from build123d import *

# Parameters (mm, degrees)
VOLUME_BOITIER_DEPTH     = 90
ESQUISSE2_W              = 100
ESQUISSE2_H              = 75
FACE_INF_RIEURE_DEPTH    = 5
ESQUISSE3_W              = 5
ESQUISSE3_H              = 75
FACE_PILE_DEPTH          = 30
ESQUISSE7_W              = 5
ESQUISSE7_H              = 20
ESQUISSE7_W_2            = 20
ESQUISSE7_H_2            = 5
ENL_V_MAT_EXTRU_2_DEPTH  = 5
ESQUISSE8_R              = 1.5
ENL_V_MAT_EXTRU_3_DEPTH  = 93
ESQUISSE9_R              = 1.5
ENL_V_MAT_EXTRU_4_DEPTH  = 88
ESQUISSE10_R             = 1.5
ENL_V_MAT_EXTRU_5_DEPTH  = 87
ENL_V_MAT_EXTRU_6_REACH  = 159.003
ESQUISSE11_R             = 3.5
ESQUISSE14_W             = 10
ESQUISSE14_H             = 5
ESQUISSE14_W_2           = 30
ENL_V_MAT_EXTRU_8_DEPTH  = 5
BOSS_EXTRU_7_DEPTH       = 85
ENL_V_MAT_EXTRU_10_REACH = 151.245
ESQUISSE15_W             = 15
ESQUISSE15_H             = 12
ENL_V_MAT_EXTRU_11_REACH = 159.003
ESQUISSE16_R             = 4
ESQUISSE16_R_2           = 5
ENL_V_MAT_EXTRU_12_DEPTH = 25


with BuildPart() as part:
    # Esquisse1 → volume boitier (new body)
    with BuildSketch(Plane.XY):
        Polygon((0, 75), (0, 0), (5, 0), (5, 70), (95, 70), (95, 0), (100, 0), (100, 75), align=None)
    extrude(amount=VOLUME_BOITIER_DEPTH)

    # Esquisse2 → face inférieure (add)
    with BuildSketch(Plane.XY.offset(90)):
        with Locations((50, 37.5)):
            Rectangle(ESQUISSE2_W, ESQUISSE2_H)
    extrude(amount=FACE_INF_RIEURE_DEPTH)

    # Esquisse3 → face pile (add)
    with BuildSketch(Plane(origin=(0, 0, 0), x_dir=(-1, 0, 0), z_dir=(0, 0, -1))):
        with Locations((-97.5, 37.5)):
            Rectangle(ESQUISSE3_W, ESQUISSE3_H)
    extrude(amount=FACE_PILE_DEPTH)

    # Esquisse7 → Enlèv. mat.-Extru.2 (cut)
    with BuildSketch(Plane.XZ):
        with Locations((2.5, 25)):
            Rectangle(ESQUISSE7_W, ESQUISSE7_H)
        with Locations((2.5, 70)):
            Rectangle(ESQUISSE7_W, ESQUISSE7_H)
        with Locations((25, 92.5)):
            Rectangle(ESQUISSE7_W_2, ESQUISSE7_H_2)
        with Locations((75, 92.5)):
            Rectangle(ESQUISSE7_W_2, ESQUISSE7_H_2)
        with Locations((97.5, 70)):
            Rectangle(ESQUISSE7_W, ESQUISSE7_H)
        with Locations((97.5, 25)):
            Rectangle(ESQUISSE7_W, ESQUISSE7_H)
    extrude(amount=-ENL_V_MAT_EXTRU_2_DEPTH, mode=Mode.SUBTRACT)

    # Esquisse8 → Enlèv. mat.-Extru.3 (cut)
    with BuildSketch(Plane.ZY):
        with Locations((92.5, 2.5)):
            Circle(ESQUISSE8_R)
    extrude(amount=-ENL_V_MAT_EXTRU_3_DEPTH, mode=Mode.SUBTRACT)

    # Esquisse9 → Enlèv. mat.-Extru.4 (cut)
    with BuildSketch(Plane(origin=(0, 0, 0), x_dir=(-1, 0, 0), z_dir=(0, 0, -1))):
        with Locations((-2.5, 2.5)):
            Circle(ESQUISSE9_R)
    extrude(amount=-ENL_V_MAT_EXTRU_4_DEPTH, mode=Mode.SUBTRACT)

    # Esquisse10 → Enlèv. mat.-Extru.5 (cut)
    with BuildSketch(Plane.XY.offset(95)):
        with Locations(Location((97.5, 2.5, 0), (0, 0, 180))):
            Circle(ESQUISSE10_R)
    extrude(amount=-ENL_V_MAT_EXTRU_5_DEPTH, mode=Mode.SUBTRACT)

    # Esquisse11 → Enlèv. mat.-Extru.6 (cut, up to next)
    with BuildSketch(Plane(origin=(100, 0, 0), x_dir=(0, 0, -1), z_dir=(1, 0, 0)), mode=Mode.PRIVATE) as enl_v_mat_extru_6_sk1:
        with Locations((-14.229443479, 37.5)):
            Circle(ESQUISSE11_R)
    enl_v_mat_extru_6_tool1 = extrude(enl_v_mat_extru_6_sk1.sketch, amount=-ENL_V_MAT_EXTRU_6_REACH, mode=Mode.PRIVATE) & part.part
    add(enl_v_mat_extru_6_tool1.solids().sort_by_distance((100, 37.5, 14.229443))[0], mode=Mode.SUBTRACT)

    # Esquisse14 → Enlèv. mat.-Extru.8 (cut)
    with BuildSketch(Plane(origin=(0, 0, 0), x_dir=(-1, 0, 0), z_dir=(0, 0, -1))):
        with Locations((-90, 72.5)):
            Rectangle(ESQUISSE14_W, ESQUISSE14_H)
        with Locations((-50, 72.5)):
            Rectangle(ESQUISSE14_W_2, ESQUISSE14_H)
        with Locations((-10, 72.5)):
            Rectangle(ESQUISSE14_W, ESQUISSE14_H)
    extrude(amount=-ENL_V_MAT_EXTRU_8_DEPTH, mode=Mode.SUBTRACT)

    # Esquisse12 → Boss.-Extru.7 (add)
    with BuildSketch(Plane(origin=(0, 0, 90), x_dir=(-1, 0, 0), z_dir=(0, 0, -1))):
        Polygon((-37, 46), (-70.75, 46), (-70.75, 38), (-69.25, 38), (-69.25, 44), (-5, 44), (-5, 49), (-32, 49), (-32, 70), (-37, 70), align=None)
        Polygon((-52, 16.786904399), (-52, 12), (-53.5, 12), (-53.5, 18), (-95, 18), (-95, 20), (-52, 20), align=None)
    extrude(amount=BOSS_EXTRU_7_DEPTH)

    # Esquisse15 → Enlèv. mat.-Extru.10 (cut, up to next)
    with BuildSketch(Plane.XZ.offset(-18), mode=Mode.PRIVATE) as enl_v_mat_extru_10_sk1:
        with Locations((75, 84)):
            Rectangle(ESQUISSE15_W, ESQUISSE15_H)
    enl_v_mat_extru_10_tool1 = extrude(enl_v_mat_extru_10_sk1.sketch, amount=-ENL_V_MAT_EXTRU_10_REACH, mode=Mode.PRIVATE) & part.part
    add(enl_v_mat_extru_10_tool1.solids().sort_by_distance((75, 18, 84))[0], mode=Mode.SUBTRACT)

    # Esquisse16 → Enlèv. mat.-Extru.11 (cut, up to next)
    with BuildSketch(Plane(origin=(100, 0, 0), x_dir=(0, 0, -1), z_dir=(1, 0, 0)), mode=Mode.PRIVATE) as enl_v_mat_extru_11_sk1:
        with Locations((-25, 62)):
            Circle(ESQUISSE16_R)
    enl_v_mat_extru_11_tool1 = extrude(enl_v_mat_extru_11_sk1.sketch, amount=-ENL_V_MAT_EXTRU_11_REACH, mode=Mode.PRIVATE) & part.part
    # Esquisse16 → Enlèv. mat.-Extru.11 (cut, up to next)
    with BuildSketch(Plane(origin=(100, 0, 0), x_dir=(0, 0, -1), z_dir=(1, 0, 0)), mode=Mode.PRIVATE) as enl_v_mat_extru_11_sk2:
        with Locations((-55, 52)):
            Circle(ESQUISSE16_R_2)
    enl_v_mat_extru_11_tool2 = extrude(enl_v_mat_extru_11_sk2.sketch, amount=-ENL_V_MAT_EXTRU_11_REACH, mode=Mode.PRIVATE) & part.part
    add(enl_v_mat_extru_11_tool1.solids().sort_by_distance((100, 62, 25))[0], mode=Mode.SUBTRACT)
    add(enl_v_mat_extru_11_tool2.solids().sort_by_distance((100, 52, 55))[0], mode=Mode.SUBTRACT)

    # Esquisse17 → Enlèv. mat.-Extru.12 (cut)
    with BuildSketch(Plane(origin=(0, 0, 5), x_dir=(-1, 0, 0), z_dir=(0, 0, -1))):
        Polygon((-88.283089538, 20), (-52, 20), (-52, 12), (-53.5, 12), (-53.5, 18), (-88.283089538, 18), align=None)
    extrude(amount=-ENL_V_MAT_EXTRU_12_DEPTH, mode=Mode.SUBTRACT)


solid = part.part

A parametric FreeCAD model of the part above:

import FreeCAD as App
import Part
import Sketcher
from FreeCAD import Vector
Q = App.Units.Quantity


def add_polygon(sketch, points):
    """Adds a closed chain of lines whose ends are joined by coincident constraints."""
    first, n = sketch.GeometryCount, len(points)
    for a, b in zip(points, points[1:] + points[:1]):
        sketch.addGeometry(Part.LineSegment(App.Vector(*a, 0), App.Vector(*b, 0)), False)
    for i in range(n):
        sketch.addConstraint(Sketcher.Constraint("Coincident", first + i, 2, first + (i + 1) % n, 1))

doc = App.newDocument("Part")
body = doc.addObject("PartDesign::Body", "Body")

# Sketch on XY plane
sketch1 = doc.addObject("Sketcher::SketchObject", "Sketch")
body.addObject(sketch1)
sketch1.AttachmentSupport = (doc.XY_Plane, [""])
sketch1.MapMode = "FlatFace"
add_polygon(sketch1, [(0, 75), (0, 0), (5, 0), (5, 70), (95, 70), (95, 0), (100, 0), (100, 75)])  # lines 0-7
sketch1.addConstraint([
    Sketcher.Constraint("Vertical", 0),
    Sketcher.Constraint("Horizontal", 1),
    Sketcher.Constraint("Vertical", 2),
    Sketcher.Constraint("Horizontal", 3),
    Sketcher.Constraint("Vertical", 4),
    Sketcher.Constraint("Horizontal", 5),
    Sketcher.Constraint("Vertical", 6),
    Sketcher.Constraint("Horizontal", 7),
    Sketcher.Constraint("Coincident", 0, 2, -1, 1),
    Sketcher.Constraint("PointOnObject", 4, 2, -1),
    Sketcher.Constraint("Equal", 1, 5),
    Sketcher.Constraint("DistanceX", 1, 1, 1, 2, Q("5 mm")),
    Sketcher.Constraint("DistanceX", 3, 1, 3, 2, Q("90 mm")),
    Sketcher.Constraint("DistanceY", 0, 2, 0, 1, Q("75 mm")),
    Sketcher.Constraint("DistanceY", 2, 1, 2, 2, Q("70 mm")),
])
pad1 = doc.addObject("PartDesign::Pad", "Pad")
body.addObject(pad1)
pad1.Profile = sketch1
pad1.Length = 90

# Sketch on XY plane
sketch2 = doc.addObject("Sketcher::SketchObject", "Sketch001")
body.addObject(sketch2)
sketch2.AttachmentSupport = (doc.XY_Plane, [""])
sketch2.MapMode = "FlatFace"
sketch2.AttachmentOffset = App.Placement(Vector(0, 0, 90), App.Rotation())
add_polygon(sketch2, [(0, 75), (0, 0), (100, 0), (100, 75)])  # lines 0-3
sketch2.addConstraint([
    Sketcher.Constraint("Vertical", 0),
    Sketcher.Constraint("Horizontal", 1),
    Sketcher.Constraint("Vertical", 2),
    Sketcher.Constraint("Horizontal", 3),
    Sketcher.Constraint("Coincident", 0, 2, -1, 1),
    Sketcher.Constraint("DistanceX", 1, 1, 1, 2, Q("100 mm")),
    Sketcher.Constraint("DistanceY", 0, 2, 0, 1, Q("75 mm")),
])
pad2 = doc.addObject("PartDesign::Pad", "Pad001")
body.addObject(pad2)
pad2.Profile = sketch2
pad2.Length = 5

# Sketch on XY plane
sketch3 = doc.addObject("Sketcher::SketchObject", "Sketch002")
body.addObject(sketch3)
sketch3.AttachmentSupport = (doc.XY_Plane, [""])
sketch3.MapMode = "FlatFace"
add_polygon(sketch3, [(100, 75), (100, 0), (95, 0), (95, 75)])  # lines 0-3
sketch3.addConstraint([
    Sketcher.Constraint("Vertical", 0),
    Sketcher.Constraint("Horizontal", 1),
    Sketcher.Constraint("Vertical", 2),
    Sketcher.Constraint("Horizontal", 3),
    Sketcher.Constraint("PointOnObject", 0, 2, -1),
    Sketcher.Constraint("DistanceX", 1, 2, 1, 1, Q("5 mm")),
    Sketcher.Constraint("DistanceY", 0, 2, 0, 1, Q("75 mm")),
    Sketcher.Constraint("DistanceX", -1, 1, 0, 2, Q("100 mm")),
])
pad3 = doc.addObject("PartDesign::Pad", "Pad002")
body.addObject(pad3)
pad3.Profile = sketch3
pad3.Length = 30
pad3.Reversed = True

# Sketch on XZ plane
sketch4 = doc.addObject("Sketcher::SketchObject", "Sketch003")
body.addObject(sketch4)
sketch4.AttachmentSupport = (doc.XZ_Plane, [""])
sketch4.MapMode = "FlatFace"
add_polygon(sketch4, [(0, 35), (0, 15), (5, 15), (5, 35)])  # lines 0-3
add_polygon(sketch4, [(0, 80), (0, 60), (5, 60), (5, 80)])  # lines 4-7
add_polygon(sketch4, [(15, 95), (15, 90), (35, 90), (35, 95)])  # lines 8-11
add_polygon(sketch4, [(65, 95), (65, 90), (85, 90), (85, 95)])  # lines 12-15
add_polygon(sketch4, [(95, 80), (95, 60), (100, 60), (100, 80)])  # lines 16-19
add_polygon(sketch4, [(95, 35), (95, 15), (100, 15), (100, 35)])  # lines 20-23
sketch4.addConstraint([
    Sketcher.Constraint("Vertical", 0),
    Sketcher.Constraint("Horizontal", 1),
    Sketcher.Constraint("Vertical", 2),
    Sketcher.Constraint("Horizontal", 3),
    Sketcher.Constraint("Vertical", 4),
    Sketcher.Constraint("Horizontal", 5),
    Sketcher.Constraint("Vertical", 6),
    Sketcher.Constraint("Horizontal", 7),
    Sketcher.Constraint("Vertical", 8),
    Sketcher.Constraint("Horizontal", 9),
    Sketcher.Constraint("Vertical", 10),
    Sketcher.Constraint("Horizontal", 11),
    Sketcher.Constraint("Vertical", 12),
    Sketcher.Constraint("Horizontal", 13),
    Sketcher.Constraint("Vertical", 14),
    Sketcher.Constraint("Horizontal", 15),
    Sketcher.Constraint("Vertical", 16),
    Sketcher.Constraint("Horizontal", 17),
    Sketcher.Constraint("Vertical", 18),
    Sketcher.Constraint("Horizontal", 19),
    Sketcher.Constraint("Vertical", 20),
    Sketcher.Constraint("Horizontal", 21),
    Sketcher.Constraint("Vertical", 22),
    Sketcher.Constraint("Horizontal", 23),
    Sketcher.Constraint("PointOnObject", 0, 2, -2),
    Sketcher.Constraint("PointOnObject", 4, 2, -2),
    Sketcher.Constraint("Horizontal", 9, 2, 12, 2),
    Sketcher.Constraint("Horizontal", 11, 2, 14, 2),
    Sketcher.Constraint("Horizontal", 5, 2, 16, 2),
    Sketcher.Constraint("Horizontal", 7, 2, 18, 2),
    Sketcher.Constraint("Horizontal", 1, 2, 20, 2),
    Sketcher.Constraint("Horizontal", 3, 2, 22, 2),
    Sketcher.Constraint("Vertical", 2, 2, 5, 2),
    Sketcher.Constraint("Vertical", 19, 2, 20, 2),
    Sketcher.Constraint("Vertical", 18, 2, 21, 2),
    Sketcher.Constraint("Equal", 11, 13),
    Sketcher.Constraint("Equal", 7, 17),
    Sketcher.Constraint("Equal", 15, 0),
    Sketcher.Constraint("Equal", 2, 4),
    Sketcher.Constraint("Equal", 23, 8),
    Sketcher.Constraint("DistanceX", 1, 1, 1, 2, Q("5 mm")),
    Sketcher.Constraint("DistanceX", 9, 1, 9, 2, Q("20 mm")),
    Sketcher.Constraint("DistanceY", -1, 1, 0, 2, Q("15 mm")),
    Sketcher.Constraint("DistanceY", -1, 1, 4, 2, Q("60 mm")),
    Sketcher.Constraint("DistanceX", -1, 1, 8, 2, Q("15 mm")),
    Sketcher.Constraint("DistanceY", -1, 1, 8, 2, Q("90 mm")),
    Sketcher.Constraint("DistanceX", -1, 1, 12, 2, Q("65 mm")),
    Sketcher.Constraint("DistanceX", -1, 1, 16, 2, Q("95 mm")),
])
pocket1 = doc.addObject("PartDesign::Pocket", "Pocket")
body.addObject(pocket1)
pocket1.Profile = sketch4
pocket1.Length = 5

# Sketch on YZ plane
sketch5 = doc.addObject("Sketcher::SketchObject", "Sketch004")
body.addObject(sketch5)
sketch5.AttachmentSupport = (doc.YZ_Plane, [""])
sketch5.MapMode = "FlatFace"
sketch5.addGeometry(Part.Circle(Vector(2.5, 92.5, 0), Vector(0, 0, 1), 1.5), False)
sketch5.addConstraint([
    Sketcher.Constraint("Diameter", 0, Q("3 mm")),
    Sketcher.Constraint("DistanceX", -1, 1, 0, 3, Q("2.5 mm")),
    Sketcher.Constraint("DistanceY", -1, 1, 0, 3, Q("92.5 mm")),
])
pocket2 = doc.addObject("PartDesign::Pocket", "Pocket001")
body.addObject(pocket2)
pocket2.Profile = sketch5
pocket2.Length = 93
pocket2.Reversed = True

# Sketch on XY plane
sketch6 = doc.addObject("Sketcher::SketchObject", "Sketch005")
body.addObject(sketch6)
sketch6.AttachmentSupport = (doc.XY_Plane, [""])
sketch6.MapMode = "FlatFace"
sketch6.addGeometry(Part.Circle(Vector(2.5, 2.5, 0), Vector(0, 0, 1), 1.5), False)
sketch6.addConstraint([
    Sketcher.Constraint("Diameter", 0, Q("3 mm")),
    Sketcher.Constraint("DistanceX", -1, 1, 0, 3, Q("2.5 mm")),
    Sketcher.Constraint("DistanceY", -1, 1, 0, 3, Q("2.5 mm")),
])
pocket3 = doc.addObject("PartDesign::Pocket", "Pocket002")
body.addObject(pocket3)
pocket3.Profile = sketch6
pocket3.Length = 88
pocket3.Reversed = True

# Sketch on XY plane
sketch7 = doc.addObject("Sketcher::SketchObject", "Sketch006")
body.addObject(sketch7)
sketch7.AttachmentSupport = (doc.XY_Plane, [""])
sketch7.MapMode = "FlatFace"
sketch7.AttachmentOffset = App.Placement(Vector(0, 0, 95), App.Rotation())
sketch7.addGeometry(Part.Circle(Vector(97.5, 2.5, 0), Vector(0, 0, 1), 1.5), False)
sketch7.addConstraint([
    Sketcher.Constraint("Diameter", 0, Q("3 mm")),
    Sketcher.Constraint("DistanceX", -1, 1, 0, 3, Q("97.5 mm")),
    Sketcher.Constraint("DistanceY", -1, 1, 0, 3, Q("2.5 mm")),
])
pocket4 = doc.addObject("PartDesign::Pocket", "Pocket003")
body.addObject(pocket4)
pocket4.Profile = sketch7
pocket4.Length = 87

# Sketch on YZ plane
sketch8 = doc.addObject("Sketcher::SketchObject", "Sketch007")
body.addObject(sketch8)
sketch8.AttachmentSupport = (doc.YZ_Plane, [""])
sketch8.MapMode = "FlatFace"
sketch8.AttachmentOffset = App.Placement(Vector(0, 0, 100), App.Rotation())
sketch8.addGeometry(Part.Circle(Vector(37.5, 14.229443, 0), Vector(0, 0, 1), 3.5), False)
sketch8.addConstraint([
    Sketcher.Constraint("Diameter", 0, Q("7 mm")),
    Sketcher.Constraint("DistanceX", -1, 1, 0, 3, Q("37.5 mm")),
    Sketcher.Constraint("DistanceY", -1, 1, 0, 3, Q("14.229443 mm")),
])
pocket5 = doc.addObject("PartDesign::Pocket", "Pocket004")
body.addObject(pocket5)
pocket5.Profile = sketch8
pocket5.Type = "UpToFirst"

# Sketch on XY plane
sketch9 = doc.addObject("Sketcher::SketchObject", "Sketch008")
body.addObject(sketch9)
sketch9.AttachmentSupport = (doc.XY_Plane, [""])
sketch9.MapMode = "FlatFace"
add_polygon(sketch9, [(95, 75), (95, 70), (85, 70), (85, 75)])  # lines 0-3
add_polygon(sketch9, [(65, 75), (65, 70), (35, 70), (35, 75)])  # lines 4-7
add_polygon(sketch9, [(15, 75), (15, 70), (5, 70), (5, 75)])  # lines 8-11
sketch9.addConstraint([
    Sketcher.Constraint("Vertical", 0),
    Sketcher.Constraint("Horizontal", 1),
    Sketcher.Constraint("Vertical", 2),
    Sketcher.Constraint("Horizontal", 3),
    Sketcher.Constraint("Vertical", 4),
    Sketcher.Constraint("Horizontal", 5),
    Sketcher.Constraint("Vertical", 6),
    Sketcher.Constraint("Horizontal", 7),
    Sketcher.Constraint("Vertical", 8),
    Sketcher.Constraint("Horizontal", 9),
    Sketcher.Constraint("Vertical", 10),
    Sketcher.Constraint("Horizontal", 11),
    Sketcher.Constraint("Horizontal", 1, 2, 4, 2),
    Sketcher.Constraint("Horizontal", 3, 2, 6, 2),
    Sketcher.Constraint("Horizontal", 5, 2, 8, 2),
    Sketcher.Constraint("Horizontal", 7, 2, 10, 2),
    Sketcher.Constraint("Equal", 3, 9),
    Sketcher.Constraint("DistanceX", 1, 2, 1, 1, Q("10 mm")),
    Sketcher.Constraint("DistanceX", 5, 2, 5, 1, Q("30 mm")),
    Sketcher.Constraint("DistanceY", 0, 2, 0, 1, Q("5 mm")),
    Sketcher.Constraint("DistanceX", -1, 1, 0, 2, Q("95 mm")),
    Sketcher.Constraint("DistanceY", -1, 1, 0, 2, Q("70 mm")),
    Sketcher.Constraint("DistanceX", -1, 1, 4, 2, Q("65 mm")),
    Sketcher.Constraint("DistanceX", -1, 1, 8, 2, Q("15 mm")),
])
pocket6 = doc.addObject("PartDesign::Pocket", "Pocket005")
body.addObject(pocket6)
pocket6.Profile = sketch9
pocket6.Length = 5
pocket6.Reversed = True

# Sketch on XY plane
sketch10 = doc.addObject("Sketcher::SketchObject", "Sketch009")
body.addObject(sketch10)
sketch10.AttachmentSupport = (doc.XY_Plane, [""])
sketch10.MapMode = "FlatFace"
sketch10.AttachmentOffset = App.Placement(Vector(0, 0, 90), App.Rotation())
add_polygon(sketch10, [(37, 46), (70.75, 46), (70.75, 38), (69.25, 38), (69.25, 44), (5, 44), (5, 49), (32, 49), (32, 70), (37, 70)])  # lines 0-9
add_polygon(sketch10, [(52, 12), (52, 20), (95, 20), (95, 18), (53.5, 18), (53.5, 12)])  # lines 10-15
sketch10.addConstraint([
    Sketcher.Constraint("Horizontal", 0),
    Sketcher.Constraint("Vertical", 1),
    Sketcher.Constraint("Horizontal", 2),
    Sketcher.Constraint("Vertical", 3),
    Sketcher.Constraint("Horizontal", 4),
    Sketcher.Constraint("Vertical", 5),
    Sketcher.Constraint("Horizontal", 6),
    Sketcher.Constraint("Vertical", 7),
    Sketcher.Constraint("Horizontal", 8),
    Sketcher.Constraint("Vertical", 9),
    Sketcher.Constraint("Vertical", 10),
    Sketcher.Constraint("Horizontal", 11),
    Sketcher.Constraint("Vertical", 12),
    Sketcher.Constraint("Horizontal", 13),
    Sketcher.Constraint("Vertical", 14),
    Sketcher.Constraint("Horizontal", 15),
    Sketcher.Constraint("Equal", 2, 15),
    Sketcher.Constraint("Equal", 8, 5),
    Sketcher.Constraint("Equal", 1, 10),
    Sketcher.Constraint("Equal", 3, 14),
    Sketcher.Constraint("DistanceX", 6, 1, 6, 2, Q("27 mm")),
    Sketcher.Constraint("DistanceX", 8, 1, 8, 2, Q("5 mm")),
    Sketcher.Constraint("DistanceX", 11, 1, 11, 2, Q("43 mm")),
    Sketcher.Constraint("DistanceY", 1, 2, 1, 1, Q("8 mm")),
    Sketcher.Constraint("DistanceY", 3, 1, 3, 2, Q("6 mm")),
    Sketcher.Constraint("DistanceY", 7, 1, 7, 2, Q("21 mm")),
    Sketcher.Constraint("DistanceX", 2, 2, 2, 1, Q("1.5 mm")),
    Sketcher.Constraint("DistanceY", -1, 1, 0, 2, Q("46 mm")),
    Sketcher.Constraint("DistanceX", -1, 1, 4, 2, Q("5 mm")),
    Sketcher.Constraint("DistanceX", -1, 1, 10, 2, Q("52 mm")),
    Sketcher.Constraint("DistanceY", -1, 1, 10, 2, Q("20 mm")),
    Sketcher.Constraint("DistanceX", 0, 1, 0, 2, Q("33.75 mm")),
])
pad4 = doc.addObject("PartDesign::Pad", "Pad003")
body.addObject(pad4)
pad4.Profile = sketch10
pad4.Length = 85
pad4.Reversed = True

# Sketch on XZ plane
sketch11 = doc.addObject("Sketcher::SketchObject", "Sketch010")
body.addObject(sketch11)
sketch11.AttachmentSupport = (doc.XZ_Plane, [""])
sketch11.MapMode = "FlatFace"
sketch11.AttachmentOffset = App.Placement(Vector(0, 0, -18), App.Rotation())
add_polygon(sketch11, [(67.5, 90), (67.5, 78), (82.5, 78), (82.5, 90)])  # lines 0-3
sketch11.addConstraint([
    Sketcher.Constraint("Vertical", 0),
    Sketcher.Constraint("Horizontal", 1),
    Sketcher.Constraint("Vertical", 2),
    Sketcher.Constraint("Horizontal", 3),
    Sketcher.Constraint("DistanceX", 1, 1, 1, 2, Q("15 mm")),
    Sketcher.Constraint("DistanceY", 0, 2, 0, 1, Q("12 mm")),
    Sketcher.Constraint("DistanceY", -1, 1, 0, 2, Q("78 mm")),
    Sketcher.Constraint("DistanceX", -1, 1, 0, 2, Q("67.5 mm")),
])
pocket7 = doc.addObject("PartDesign::Pocket", "Pocket006")
body.addObject(pocket7)
pocket7.Profile = sketch11
pocket7.Type = "UpToFirst"

# Sketch on YZ plane
sketch12 = doc.addObject("Sketcher::SketchObject", "Sketch011")
body.addObject(sketch12)
sketch12.AttachmentSupport = (doc.YZ_Plane, [""])
sketch12.MapMode = "FlatFace"
sketch12.AttachmentOffset = App.Placement(Vector(0, 0, 100), App.Rotation())
sketch12.addGeometry(Part.Circle(Vector(62, 25, 0), Vector(0, 0, 1), 4), False)
sketch12.addConstraint([
    Sketcher.Constraint("Diameter", 0, Q("8 mm")),
    Sketcher.Constraint("DistanceX", -1, 1, 0, 3, Q("62 mm")),
    Sketcher.Constraint("DistanceY", -1, 1, 0, 3, Q("25 mm")),
])
pocket8 = doc.addObject("PartDesign::Pocket", "Pocket007")
body.addObject(pocket8)
pocket8.Profile = sketch12
pocket8.Type = "UpToFirst"

# Sketch on YZ plane
sketch13 = doc.addObject("Sketcher::SketchObject", "Sketch012")
body.addObject(sketch13)
sketch13.AttachmentSupport = (doc.YZ_Plane, [""])
sketch13.MapMode = "FlatFace"
sketch13.AttachmentOffset = App.Placement(Vector(0, 0, 100), App.Rotation())
sketch13.addGeometry(Part.Circle(Vector(52, 55, 0), Vector(0, 0, 1), 5), False)
sketch13.addConstraint([
    Sketcher.Constraint("Diameter", 0, Q("10 mm")),
    Sketcher.Constraint("DistanceX", -1, 1, 0, 3, Q("52 mm")),
    Sketcher.Constraint("DistanceY", -1, 1, 0, 3, Q("55 mm")),
])
pocket9 = doc.addObject("PartDesign::Pocket", "Pocket008")
body.addObject(pocket9)
pocket9.Profile = sketch13
pocket9.Type = "UpToFirst"

# Sketch on XY plane
sketch14 = doc.addObject("Sketcher::SketchObject", "Sketch013")
body.addObject(sketch14)
sketch14.AttachmentSupport = (doc.XY_Plane, [""])
sketch14.MapMode = "FlatFace"
sketch14.AttachmentOffset = App.Placement(Vector(0, 0, 5), App.Rotation())
add_polygon(sketch14, [(52, 20), (88.28309, 20), (88.28309, 18), (53.5, 18), (53.5, 12), (52, 12)])  # lines 0-5
sketch14.addConstraint([
    Sketcher.Constraint("Horizontal", 0),
    Sketcher.Constraint("Vertical", 1),
    Sketcher.Constraint("Horizontal", 2),
    Sketcher.Constraint("Vertical", 3),
    Sketcher.Constraint("Horizontal", 4),
    Sketcher.Constraint("Vertical", 5),
    Sketcher.Constraint("DistanceY", 1, 2, 1, 1, Q("2 mm")),
    Sketcher.Constraint("DistanceY", 3, 2, 3, 1, Q("6 mm")),
    Sketcher.Constraint("DistanceX", 4, 2, 4, 1, Q("1.5 mm")),
    Sketcher.Constraint("DistanceY", -1, 1, 0, 2, Q("20 mm")),
    Sketcher.Constraint("DistanceX", -1, 1, 4, 2, Q("52 mm")),
    Sketcher.Constraint("DistanceX", 0, 1, 0, 2, Q("36.28309 mm")),
])
pocket10 = doc.addObject("PartDesign::Pocket", "Pocket009")
body.addObject(pocket10)
pocket10.Profile = sketch14
pocket10.Length = 25
pocket10.Reversed = True

doc.recompute()
